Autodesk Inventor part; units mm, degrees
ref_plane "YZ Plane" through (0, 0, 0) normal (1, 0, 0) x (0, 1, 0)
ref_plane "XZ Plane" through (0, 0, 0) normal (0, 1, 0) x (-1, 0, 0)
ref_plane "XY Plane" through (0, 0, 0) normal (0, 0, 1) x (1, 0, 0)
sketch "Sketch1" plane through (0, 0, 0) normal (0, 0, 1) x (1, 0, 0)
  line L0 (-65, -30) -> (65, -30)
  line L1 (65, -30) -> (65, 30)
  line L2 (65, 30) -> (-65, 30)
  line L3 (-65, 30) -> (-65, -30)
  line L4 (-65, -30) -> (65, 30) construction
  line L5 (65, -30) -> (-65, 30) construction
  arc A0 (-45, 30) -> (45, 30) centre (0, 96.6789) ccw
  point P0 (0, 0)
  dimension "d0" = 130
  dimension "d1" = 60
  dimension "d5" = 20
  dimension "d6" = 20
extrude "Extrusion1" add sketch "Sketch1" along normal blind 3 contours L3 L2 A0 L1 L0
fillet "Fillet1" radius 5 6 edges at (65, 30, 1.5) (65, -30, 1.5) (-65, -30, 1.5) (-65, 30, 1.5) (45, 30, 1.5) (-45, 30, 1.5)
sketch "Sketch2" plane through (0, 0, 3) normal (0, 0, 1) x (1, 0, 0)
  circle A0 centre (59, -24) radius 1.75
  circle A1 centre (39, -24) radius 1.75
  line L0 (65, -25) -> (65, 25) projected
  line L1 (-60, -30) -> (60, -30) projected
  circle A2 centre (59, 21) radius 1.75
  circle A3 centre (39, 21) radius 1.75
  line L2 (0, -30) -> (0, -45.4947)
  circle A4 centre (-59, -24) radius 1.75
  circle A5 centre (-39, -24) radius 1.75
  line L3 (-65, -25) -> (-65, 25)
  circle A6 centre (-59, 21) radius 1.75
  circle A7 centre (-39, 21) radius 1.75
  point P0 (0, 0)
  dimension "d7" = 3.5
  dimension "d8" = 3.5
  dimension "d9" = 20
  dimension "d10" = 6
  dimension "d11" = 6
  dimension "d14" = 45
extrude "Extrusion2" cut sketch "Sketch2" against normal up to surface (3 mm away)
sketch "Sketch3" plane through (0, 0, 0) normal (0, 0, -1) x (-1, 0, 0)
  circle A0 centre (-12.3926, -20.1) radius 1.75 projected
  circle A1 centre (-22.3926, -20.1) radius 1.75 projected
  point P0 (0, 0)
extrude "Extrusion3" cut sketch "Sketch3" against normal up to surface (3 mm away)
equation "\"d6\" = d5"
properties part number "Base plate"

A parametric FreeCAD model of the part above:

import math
import FreeCAD as App
import Part
import Sketcher
Q = App.Units.Quantity


def edges_at(feature, points):
    """Names of the edges that pass closest to the given points."""
    edges = feature.Shape.Edges
    near = lambda p: min(range(len(edges)), key=lambda i: edges[i].distToShape(Part.Vertex(*p))[0])
    return sorted({f"Edge{near(p) + 1}" for p in points})

doc = App.newDocument("Part")
body = doc.addObject("PartDesign::Body", "Body")

sketch1 = body.newObject("Sketcher::SketchObject", "Sketch")
sketch1.AttachmentSupport = (doc.getObject("XY_Plane"), [""])
sketch1.MapMode = "FlatFace"
sketch1.addGeometry(Part.LineSegment(App.Vector(-65, 30, 0), App.Vector(-65, -30, 0)), False)
sketch1.addGeometry(Part.LineSegment(App.Vector(-65, -30, 0), App.Vector(65, -30, 0)), False)
sketch1.addGeometry(Part.LineSegment(App.Vector(65, -30, 0), App.Vector(65, 30, 0)), False)
sketch1.addGeometry(Part.LineSegment(App.Vector(65, 30, 0), App.Vector(45, 30, 0)), False)
sketch1.addGeometry(Part.ArcOfCircle(Part.Circle(App.Vector(0, 96.6789, 0), App.Vector(0, 0, 1), 80.442997), math.radians(-124.014475), math.radians(-55.985525)), False)
sketch1.addGeometry(Part.LineSegment(App.Vector(-45, 30, 0), App.Vector(-65, 30, 0)), False)
sketch1.addConstraint(Sketcher.Constraint("Coincident", 0, 2, 1, 1))
sketch1.addConstraint(Sketcher.Constraint("Coincident", 1, 2, 2, 1))
sketch1.addConstraint(Sketcher.Constraint("Coincident", 2, 2, 3, 1))
sketch1.addConstraint(Sketcher.Constraint("Coincident", 3, 2, 4, 2))
sketch1.addConstraint(Sketcher.Constraint("Coincident", 4, 1, 5, 1))
sketch1.addConstraint(Sketcher.Constraint("Coincident", 5, 2, 0, 1))
sketch1.addConstraint(Sketcher.Constraint("Vertical", 0))
sketch1.addConstraint(Sketcher.Constraint("Horizontal", 1))
sketch1.addConstraint(Sketcher.Constraint("Vertical", 2))
sketch1.addConstraint(Sketcher.Constraint("Horizontal", 3))
sketch1.addConstraint(Sketcher.Constraint("Horizontal", 5))
sketch1.addConstraint(Sketcher.Constraint("Symmetric", 0, 2, 2, 2, -1, 1))
sketch1.addConstraint(Sketcher.Constraint("Symmetric", 3, 2, 4, 1, -2))
sketch1.addConstraint(Sketcher.Constraint("DistanceX", 1, 1, 1, 2, Q("130 mm")))
sketch1.addConstraint(Sketcher.Constraint("DistanceX", 3, 2, 3, 1, Q("20 mm")))
sketch1.addConstraint(Sketcher.Constraint("DistanceY", 0, 2, 0, 1, Q("60 mm")))
sketch1.addConstraint(Sketcher.Constraint("Radius", 4, Q("80.443 mm")))
pad1 = body.newObject("PartDesign::Pad", "Pad")
pad1.Profile = sketch1
pad1.Length = 3
doc.recompute()

fillet = body.newObject("PartDesign::Fillet", "Fillet")
fillet.Base = (pad1, edges_at(pad1, [
    (65, 30, 1.5),
    (65, -30, 1.5),
    (-65, -30, 1.5),
    (-65, 30, 1.5),
    (45, 30, 1.5),
    (-45, 30, 1.5),
]))
fillet.Radius = 5

sketch2 = body.newObject("Sketcher::SketchObject", "Sketch001")
sketch2.AttachmentSupport = (doc.getObject("XY_Plane"), [""])
sketch2.MapMode = "FlatFace"
sketch2.AttachmentOffset = App.Placement(App.Vector(0, 0, 3), App.Rotation())
sketch2.addGeometry(Part.Circle(App.Vector(59, -24, 0), App.Vector(0, 0, 1), 1.75), False)
sketch2.addGeometry(Part.Circle(App.Vector(39, -24, 0), App.Vector(0, 0, 1), 1.75), False)
sketch2.addGeometry(Part.Circle(App.Vector(59, 21, 0), App.Vector(0, 0, 1), 1.75), False)
sketch2.addGeometry(Part.Circle(App.Vector(39, 21, 0), App.Vector(0, 0, 1), 1.75), False)
sketch2.addGeometry(Part.Circle(App.Vector(-59, -24, 0), App.Vector(0, 0, 1), 1.75), False)
sketch2.addGeometry(Part.Circle(App.Vector(-39, -24, 0), App.Vector(0, 0, 1), 1.75), False)
sketch2.addGeometry(Part.Circle(App.Vector(-59, 21, 0), App.Vector(0, 0, 1), 1.75), False)
sketch2.addGeometry(Part.Circle(App.Vector(-39, 21, 0), App.Vector(0, 0, 1), 1.75), False)
sketch2.addConstraint(Sketcher.Constraint("Equal", 0, 1))
sketch2.addConstraint(Sketcher.Constraint("Equal", 1, 2))
sketch2.addConstraint(Sketcher.Constraint("Equal", 2, 3))
sketch2.addConstraint(Sketcher.Constraint("Equal", 3, 4))
sketch2.addConstraint(Sketcher.Constraint("Equal", 4, 5))
sketch2.addConstraint(Sketcher.Constraint("Equal", 5, 6))
sketch2.addConstraint(Sketcher.Constraint("Equal", 6, 7))
sketch2.addConstraint(Sketcher.Constraint("Symmetric", 0, 3, 4, 3, -2))
sketch2.addConstraint(Sketcher.Constraint("Symmetric", 1, 3, 5, 3, -2))
sketch2.addConstraint(Sketcher.Constraint("Symmetric", 2, 3, 6, 3, -2))
sketch2.addConstraint(Sketcher.Constraint("Symmetric", 3, 3, 7, 3, -2))
sketch2.addConstraint(Sketcher.Constraint("Horizontal", 0, 3, 1, 3))
sketch2.addConstraint(Sketcher.Constraint("Horizontal", 2, 3, 3, 3))
sketch2.addConstraint(Sketcher.Constraint("Vertical", 0, 3, 2, 3))
sketch2.addConstraint(Sketcher.Constraint("Vertical", 1, 3, 3, 3))
sketch2.addConstraint(Sketcher.Constraint("Diameter", 0, Q("3.5 mm")))
sketch2.addConstraint(Sketcher.Constraint("DistanceX", 1, 3, 0, 3, Q("20 mm")))
sketch2.addConstraint(Sketcher.Constraint("DistanceY", 0, 3, 2, 3, Q("45 mm")))
sketch2.addConstraint(Sketcher.Constraint("DistanceX", -1, 1, 0, 3, Q("59 mm")))
sketch2.addConstraint(Sketcher.Constraint("DistanceY", 0, 3, -1, 1, Q("24 mm")))
pocket1 = body.newObject("PartDesign::Pocket", "Pocket")
pocket1.Profile = sketch2
pocket1.Length = 3

sketch3 = body.newObject("Sketcher::SketchObject", "Sketch002")
sketch3.AttachmentSupport = (doc.getObject("XY_Plane"), [""])
sketch3.MapMode = "FlatFace"
sketch3.addGeometry(Part.Circle(App.Vector(12.3926, -20.1, 0), App.Vector(0, 0, 1), 1.75), False)
sketch3.addGeometry(Part.Circle(App.Vector(22.3926, -20.1, 0), App.Vector(0, 0, 1), 1.75), False)
sketch3.addConstraint(Sketcher.Constraint("Equal", 0, 1))
sketch3.addConstraint(Sketcher.Constraint("Horizontal", 0, 3, 1, 3))
sketch3.addConstraint(Sketcher.Constraint("Diameter", 0, Q("3.5 mm")))
sketch3.addConstraint(Sketcher.Constraint("DistanceX", 0, 3, 1, 3, Q("10 mm")))
sketch3.addConstraint(Sketcher.Constraint("DistanceY", 0, 3, -1, 1, Q("20.1 mm")))
sketch3.addConstraint(Sketcher.Constraint("DistanceX", -1, 1, 0, 3, Q("12.3926 mm")))
pocket2 = body.newObject("PartDesign::Pocket", "Pocket001")
pocket2.Profile = sketch3
pocket2.Length = 3
pocket2.Reversed = True

doc.recompute()
